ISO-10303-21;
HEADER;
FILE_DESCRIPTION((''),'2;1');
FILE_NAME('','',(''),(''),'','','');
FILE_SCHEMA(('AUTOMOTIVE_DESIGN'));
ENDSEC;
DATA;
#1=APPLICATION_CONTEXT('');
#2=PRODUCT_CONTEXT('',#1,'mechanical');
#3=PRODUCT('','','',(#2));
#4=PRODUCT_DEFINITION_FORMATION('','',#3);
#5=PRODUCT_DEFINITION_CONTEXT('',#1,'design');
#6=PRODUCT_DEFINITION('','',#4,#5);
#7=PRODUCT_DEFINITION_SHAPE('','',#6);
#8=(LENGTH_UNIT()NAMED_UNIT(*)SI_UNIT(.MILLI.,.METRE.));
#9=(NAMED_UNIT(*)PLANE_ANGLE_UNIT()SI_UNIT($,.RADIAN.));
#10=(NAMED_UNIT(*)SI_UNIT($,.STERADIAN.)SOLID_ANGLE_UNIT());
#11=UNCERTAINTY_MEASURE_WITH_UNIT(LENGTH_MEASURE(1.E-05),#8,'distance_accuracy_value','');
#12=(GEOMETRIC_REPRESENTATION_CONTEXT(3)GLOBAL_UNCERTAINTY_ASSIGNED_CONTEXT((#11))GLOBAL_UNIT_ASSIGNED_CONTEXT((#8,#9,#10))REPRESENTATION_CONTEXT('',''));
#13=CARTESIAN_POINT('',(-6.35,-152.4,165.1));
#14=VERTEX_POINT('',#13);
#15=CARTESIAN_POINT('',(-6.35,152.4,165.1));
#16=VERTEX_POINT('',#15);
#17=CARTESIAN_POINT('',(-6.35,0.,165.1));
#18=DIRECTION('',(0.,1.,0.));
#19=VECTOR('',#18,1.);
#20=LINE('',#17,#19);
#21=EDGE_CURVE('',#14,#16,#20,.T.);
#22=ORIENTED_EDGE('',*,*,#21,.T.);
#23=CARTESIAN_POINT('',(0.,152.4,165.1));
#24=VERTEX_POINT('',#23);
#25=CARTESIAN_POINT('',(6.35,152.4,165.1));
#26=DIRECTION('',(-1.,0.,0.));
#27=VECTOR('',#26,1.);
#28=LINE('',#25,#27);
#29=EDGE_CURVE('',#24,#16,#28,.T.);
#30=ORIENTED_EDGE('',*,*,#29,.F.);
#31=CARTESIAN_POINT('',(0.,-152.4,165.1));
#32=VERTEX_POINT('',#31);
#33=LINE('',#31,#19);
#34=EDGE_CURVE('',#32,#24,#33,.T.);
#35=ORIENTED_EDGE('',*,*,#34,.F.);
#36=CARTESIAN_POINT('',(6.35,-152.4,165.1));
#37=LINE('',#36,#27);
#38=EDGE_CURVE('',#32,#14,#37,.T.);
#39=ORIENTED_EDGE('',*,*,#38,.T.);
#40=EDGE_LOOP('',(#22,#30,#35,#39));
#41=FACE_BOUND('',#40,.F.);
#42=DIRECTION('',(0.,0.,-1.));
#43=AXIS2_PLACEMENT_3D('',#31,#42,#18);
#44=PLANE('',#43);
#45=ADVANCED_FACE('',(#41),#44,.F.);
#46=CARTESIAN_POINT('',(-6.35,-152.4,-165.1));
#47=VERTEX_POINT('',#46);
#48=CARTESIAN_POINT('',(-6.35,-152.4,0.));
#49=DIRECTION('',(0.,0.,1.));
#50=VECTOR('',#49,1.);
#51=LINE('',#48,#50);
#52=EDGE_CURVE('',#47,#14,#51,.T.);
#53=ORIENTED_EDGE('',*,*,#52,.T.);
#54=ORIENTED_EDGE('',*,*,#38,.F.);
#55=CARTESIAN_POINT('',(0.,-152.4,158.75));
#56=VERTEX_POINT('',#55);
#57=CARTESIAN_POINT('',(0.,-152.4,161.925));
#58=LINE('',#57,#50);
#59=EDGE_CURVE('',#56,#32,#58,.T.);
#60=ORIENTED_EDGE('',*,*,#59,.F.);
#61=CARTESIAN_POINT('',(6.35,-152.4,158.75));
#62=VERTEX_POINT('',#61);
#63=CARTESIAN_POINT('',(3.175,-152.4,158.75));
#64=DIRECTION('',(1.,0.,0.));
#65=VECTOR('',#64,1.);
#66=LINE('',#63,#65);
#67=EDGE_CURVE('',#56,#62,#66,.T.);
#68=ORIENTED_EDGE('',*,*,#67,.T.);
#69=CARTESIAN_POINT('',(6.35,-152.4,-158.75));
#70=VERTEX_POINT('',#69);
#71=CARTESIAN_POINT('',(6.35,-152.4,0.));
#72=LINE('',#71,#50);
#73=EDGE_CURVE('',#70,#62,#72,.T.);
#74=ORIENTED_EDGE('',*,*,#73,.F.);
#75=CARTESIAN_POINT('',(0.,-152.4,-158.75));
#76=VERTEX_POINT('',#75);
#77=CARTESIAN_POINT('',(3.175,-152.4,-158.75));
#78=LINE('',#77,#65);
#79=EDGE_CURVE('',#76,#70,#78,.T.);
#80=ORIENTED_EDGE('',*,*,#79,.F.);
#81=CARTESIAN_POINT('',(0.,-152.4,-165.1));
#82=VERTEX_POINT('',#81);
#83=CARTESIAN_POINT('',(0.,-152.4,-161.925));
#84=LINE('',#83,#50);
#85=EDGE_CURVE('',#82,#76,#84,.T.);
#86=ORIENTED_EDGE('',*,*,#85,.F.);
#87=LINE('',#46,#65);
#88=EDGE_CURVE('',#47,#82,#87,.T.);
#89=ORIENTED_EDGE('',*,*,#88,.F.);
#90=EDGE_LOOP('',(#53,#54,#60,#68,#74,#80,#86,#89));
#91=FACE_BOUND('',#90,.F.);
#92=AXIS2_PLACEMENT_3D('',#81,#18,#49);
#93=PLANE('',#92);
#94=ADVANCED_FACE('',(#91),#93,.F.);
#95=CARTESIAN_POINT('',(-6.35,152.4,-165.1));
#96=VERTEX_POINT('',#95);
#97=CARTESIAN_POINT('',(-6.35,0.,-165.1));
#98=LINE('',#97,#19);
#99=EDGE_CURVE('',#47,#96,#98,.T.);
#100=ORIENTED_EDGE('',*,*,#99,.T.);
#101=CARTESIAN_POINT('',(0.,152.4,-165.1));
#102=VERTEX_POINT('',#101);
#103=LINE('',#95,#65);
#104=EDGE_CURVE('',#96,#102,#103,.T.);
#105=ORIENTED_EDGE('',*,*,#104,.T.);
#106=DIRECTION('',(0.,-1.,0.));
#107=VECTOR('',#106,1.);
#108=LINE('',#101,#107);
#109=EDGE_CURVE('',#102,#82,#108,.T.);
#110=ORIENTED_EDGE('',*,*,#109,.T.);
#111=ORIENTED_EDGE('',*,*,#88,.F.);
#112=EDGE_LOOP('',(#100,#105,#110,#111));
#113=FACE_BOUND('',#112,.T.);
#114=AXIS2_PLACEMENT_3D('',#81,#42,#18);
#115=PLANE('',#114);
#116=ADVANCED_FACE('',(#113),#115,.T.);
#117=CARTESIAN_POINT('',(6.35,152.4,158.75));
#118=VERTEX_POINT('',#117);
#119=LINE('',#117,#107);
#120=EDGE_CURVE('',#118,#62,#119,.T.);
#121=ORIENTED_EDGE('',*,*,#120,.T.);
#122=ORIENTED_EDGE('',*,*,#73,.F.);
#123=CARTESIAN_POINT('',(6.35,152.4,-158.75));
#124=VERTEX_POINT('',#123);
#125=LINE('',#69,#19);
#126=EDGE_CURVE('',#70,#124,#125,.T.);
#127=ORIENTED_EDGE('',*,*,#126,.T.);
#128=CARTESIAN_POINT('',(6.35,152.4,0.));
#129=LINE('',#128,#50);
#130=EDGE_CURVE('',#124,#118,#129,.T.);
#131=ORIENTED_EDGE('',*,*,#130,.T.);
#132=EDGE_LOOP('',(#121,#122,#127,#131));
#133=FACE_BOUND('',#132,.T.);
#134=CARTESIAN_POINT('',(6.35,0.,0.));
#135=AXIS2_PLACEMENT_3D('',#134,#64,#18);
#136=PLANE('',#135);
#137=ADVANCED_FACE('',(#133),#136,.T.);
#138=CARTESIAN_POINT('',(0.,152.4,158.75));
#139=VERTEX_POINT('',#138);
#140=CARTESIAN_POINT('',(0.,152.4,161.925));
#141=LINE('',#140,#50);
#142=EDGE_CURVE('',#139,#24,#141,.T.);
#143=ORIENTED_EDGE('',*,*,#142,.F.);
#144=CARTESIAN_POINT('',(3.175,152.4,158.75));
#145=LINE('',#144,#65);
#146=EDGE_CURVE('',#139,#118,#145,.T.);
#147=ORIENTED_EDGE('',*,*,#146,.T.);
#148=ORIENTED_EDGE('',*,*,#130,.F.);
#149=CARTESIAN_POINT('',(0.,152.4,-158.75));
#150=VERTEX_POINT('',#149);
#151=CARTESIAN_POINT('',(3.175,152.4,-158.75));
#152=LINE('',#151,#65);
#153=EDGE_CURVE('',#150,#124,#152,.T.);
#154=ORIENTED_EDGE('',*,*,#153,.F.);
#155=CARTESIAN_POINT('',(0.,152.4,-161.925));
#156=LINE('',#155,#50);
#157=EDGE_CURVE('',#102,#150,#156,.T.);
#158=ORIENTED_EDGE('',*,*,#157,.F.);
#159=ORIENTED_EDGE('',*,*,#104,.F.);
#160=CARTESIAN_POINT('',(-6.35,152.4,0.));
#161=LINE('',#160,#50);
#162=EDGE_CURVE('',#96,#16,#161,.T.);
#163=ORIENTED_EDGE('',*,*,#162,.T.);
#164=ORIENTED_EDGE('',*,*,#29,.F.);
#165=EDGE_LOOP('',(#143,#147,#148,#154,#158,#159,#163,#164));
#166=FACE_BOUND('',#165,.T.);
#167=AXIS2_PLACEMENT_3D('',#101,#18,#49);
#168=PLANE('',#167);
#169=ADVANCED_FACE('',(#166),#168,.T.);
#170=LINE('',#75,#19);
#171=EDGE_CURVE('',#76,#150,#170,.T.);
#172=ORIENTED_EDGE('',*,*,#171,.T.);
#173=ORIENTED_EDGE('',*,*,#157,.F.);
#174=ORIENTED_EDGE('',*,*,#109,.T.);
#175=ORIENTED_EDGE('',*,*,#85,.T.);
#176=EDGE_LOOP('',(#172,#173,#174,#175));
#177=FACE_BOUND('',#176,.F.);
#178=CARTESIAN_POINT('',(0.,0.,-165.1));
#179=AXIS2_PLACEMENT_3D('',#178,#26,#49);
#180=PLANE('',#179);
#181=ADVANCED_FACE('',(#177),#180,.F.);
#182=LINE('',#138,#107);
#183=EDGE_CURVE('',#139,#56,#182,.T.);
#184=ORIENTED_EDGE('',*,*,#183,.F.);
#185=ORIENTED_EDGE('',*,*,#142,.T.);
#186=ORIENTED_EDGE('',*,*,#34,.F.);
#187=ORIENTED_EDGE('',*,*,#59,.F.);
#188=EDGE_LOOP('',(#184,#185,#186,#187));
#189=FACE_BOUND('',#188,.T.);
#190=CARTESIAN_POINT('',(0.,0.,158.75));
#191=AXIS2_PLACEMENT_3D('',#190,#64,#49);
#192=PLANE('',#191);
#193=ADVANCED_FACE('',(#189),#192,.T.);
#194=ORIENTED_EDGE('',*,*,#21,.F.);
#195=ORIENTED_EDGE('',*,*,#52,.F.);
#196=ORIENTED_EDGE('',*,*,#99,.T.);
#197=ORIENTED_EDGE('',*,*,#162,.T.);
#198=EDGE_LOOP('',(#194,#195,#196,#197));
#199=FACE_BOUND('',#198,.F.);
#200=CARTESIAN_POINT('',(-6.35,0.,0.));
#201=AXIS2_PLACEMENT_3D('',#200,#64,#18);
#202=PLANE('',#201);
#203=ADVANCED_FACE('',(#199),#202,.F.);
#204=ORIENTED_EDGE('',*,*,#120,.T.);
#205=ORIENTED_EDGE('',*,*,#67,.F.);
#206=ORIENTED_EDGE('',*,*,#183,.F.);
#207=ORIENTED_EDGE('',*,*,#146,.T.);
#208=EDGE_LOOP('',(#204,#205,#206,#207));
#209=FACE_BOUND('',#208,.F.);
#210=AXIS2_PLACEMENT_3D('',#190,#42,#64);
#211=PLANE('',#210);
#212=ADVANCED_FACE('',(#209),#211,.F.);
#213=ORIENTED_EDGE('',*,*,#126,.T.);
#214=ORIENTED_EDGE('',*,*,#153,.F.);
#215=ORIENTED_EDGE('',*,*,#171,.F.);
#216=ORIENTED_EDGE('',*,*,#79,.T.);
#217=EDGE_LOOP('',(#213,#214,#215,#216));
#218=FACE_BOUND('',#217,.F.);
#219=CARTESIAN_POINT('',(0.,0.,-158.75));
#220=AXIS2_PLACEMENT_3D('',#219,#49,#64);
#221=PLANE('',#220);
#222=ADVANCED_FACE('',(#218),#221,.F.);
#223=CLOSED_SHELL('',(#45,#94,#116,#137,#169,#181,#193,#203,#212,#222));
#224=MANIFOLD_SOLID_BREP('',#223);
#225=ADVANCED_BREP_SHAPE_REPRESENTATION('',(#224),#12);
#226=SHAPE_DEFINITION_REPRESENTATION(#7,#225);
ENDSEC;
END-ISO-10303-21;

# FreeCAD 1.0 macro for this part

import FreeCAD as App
import Part
import Sketcher

V = App.Vector
Q = App.Units.Quantity

doc = App.newDocument("Part")
body = doc.addObject("PartDesign::Body", "Body")

sketch1 = doc.addObject("Sketcher::SketchObject", "Sketch")
body.addObject(sketch1)
sketch1.AttachmentSupport = (doc.YZ_Plane, [""])
sketch1.MapMode = "FlatFace"
sketch1.addGeometry(Part.LineSegment(V(-152.4, 165.1, 0), V(-152.4, -165.1, 0)), False)
sketch1.addGeometry(Part.LineSegment(V(-152.4, -165.1, 0), V(152.4, -165.1, 0)), False)
sketch1.addGeometry(Part.LineSegment(V(152.4, -165.1, 0), V(152.4, 165.1, 0)), False)
sketch1.addGeometry(Part.LineSegment(V(152.4, 165.1, 0), V(-152.4, 165.1, 0)), False)
sketch1.addConstraint(Sketcher.Constraint("Coincident", 0, 2, 1, 1))
sketch1.addConstraint(Sketcher.Constraint("Coincident", 1, 2, 2, 1))
sketch1.addConstraint(Sketcher.Constraint("Coincident", 2, 2, 3, 1))
sketch1.addConstraint(Sketcher.Constraint("Coincident", 3, 2, 0, 1))
sketch1.addConstraint(Sketcher.Constraint("Vertical", 0))
sketch1.addConstraint(Sketcher.Constraint("Horizontal", 1))
sketch1.addConstraint(Sketcher.Constraint("Vertical", 2))
sketch1.addConstraint(Sketcher.Constraint("Horizontal", 3))
sketch1.addConstraint(Sketcher.Constraint("Symmetric", 0, 2, 2, 2, -1, 1))
sketch1.addConstraint(Sketcher.Constraint("DistanceX", 1, 1, 1, 2, Q("12 in")))
sketch1.addConstraint(Sketcher.Constraint("DistanceY", 0, 2, 0, 1, Q("13 in")))
pad1 = doc.addObject("PartDesign::Pad", "Pad")
body.addObject(pad1)
pad1.Profile = sketch1
pad1.Length = Q("0.5 in")
pad1.Midplane = True

sketch2 = doc.addObject("Sketcher::SketchObject", "Sketch001")
body.addObject(sketch2)
sketch2.AttachmentSupport = (doc.XZ_Plane, [""])
sketch2.MapMode = "FlatFace"
sketch2.addGeometry(Part.LineSegment(V(0, -158.75, 0), V(0, -165.1, 0)), False)
sketch2.addGeometry(Part.LineSegment(V(0, -165.1, 0), V(6.35, -165.1, 0)), False)
sketch2.addGeometry(Part.LineSegment(V(6.35, -165.1, 0), V(6.35, -158.75, 0)), False)
sketch2.addGeometry(Part.LineSegment(V(6.35, -158.75, 0), V(0, -158.75, 0)), False)
sketch2.addGeometry(Part.LineSegment(V(0, 165.1, 0), V(0, 158.75, 0)), False)
sketch2.addGeometry(Part.LineSegment(V(0, 158.75, 0), V(6.35, 158.75, 0)), False)
sketch2.addGeometry(Part.LineSegment(V(6.35, 158.75, 0), V(6.35, 165.1, 0)), False)
sketch2.addGeometry(Part.LineSegment(V(6.35, 165.1, 0), V(0, 165.1, 0)), False)
sketch2.addConstraint(Sketcher.Constraint("Coincident", 0, 2, 1, 1))
sketch2.addConstraint(Sketcher.Constraint("Coincident", 1, 2, 2, 1))
sketch2.addConstraint(Sketcher.Constraint("Coincident", 2, 2, 3, 1))
sketch2.addConstraint(Sketcher.Constraint("Coincident", 3, 2, 0, 1))
sketch2.addConstraint(Sketcher.Constraint("Coincident", 4, 2, 5, 1))
sketch2.addConstraint(Sketcher.Constraint("Coincident", 5, 2, 6, 1))
sketch2.addConstraint(Sketcher.Constraint("Coincident", 6, 2, 7, 1))
sketch2.addConstraint(Sketcher.Constraint("Coincident", 7, 2, 4, 1))
sketch2.addConstraint(Sketcher.Constraint("Vertical", 0))
sketch2.addConstraint(Sketcher.Constraint("Horizontal", 1))
sketch2.addConstraint(Sketcher.Constraint("Vertical", 2))
sketch2.addConstraint(Sketcher.Constraint("Horizontal", 3))
sketch2.addConstraint(Sketcher.Constraint("Vertical", 4))
sketch2.addConstraint(Sketcher.Constraint("Horizontal", 5))
sketch2.addConstraint(Sketcher.Constraint("Vertical", 6))
sketch2.addConstraint(Sketcher.Constraint("Horizontal", 7))
sketch2.addConstraint(Sketcher.Constraint("Symmetric", 3, 2, 4, 2, -1, 1))
sketch2.addConstraint(Sketcher.Constraint("Symmetric", 1, 2, 6, 2, -1))
sketch2.addConstraint(Sketcher.Constraint("PointOnObject", 0, 2, -2))
sketch2.addConstraint(Sketcher.Constraint("Equal", 7, 0))
sketch2.addConstraint(Sketcher.Constraint("DistanceY", 1, 2, 6, 2, Q("13 in")))
sketch2.addConstraint(Sketcher.Constraint("DistanceX", 1, 1, 1, 2, Q("0.25 in")))
pocket1 = doc.addObject("PartDesign::Pocket", "Pocket")
body.addObject(pocket1)
pocket1.Profile = sketch2
pocket1.Length = Q("12 in")
pocket1.Midplane = True

doc.recompute()
